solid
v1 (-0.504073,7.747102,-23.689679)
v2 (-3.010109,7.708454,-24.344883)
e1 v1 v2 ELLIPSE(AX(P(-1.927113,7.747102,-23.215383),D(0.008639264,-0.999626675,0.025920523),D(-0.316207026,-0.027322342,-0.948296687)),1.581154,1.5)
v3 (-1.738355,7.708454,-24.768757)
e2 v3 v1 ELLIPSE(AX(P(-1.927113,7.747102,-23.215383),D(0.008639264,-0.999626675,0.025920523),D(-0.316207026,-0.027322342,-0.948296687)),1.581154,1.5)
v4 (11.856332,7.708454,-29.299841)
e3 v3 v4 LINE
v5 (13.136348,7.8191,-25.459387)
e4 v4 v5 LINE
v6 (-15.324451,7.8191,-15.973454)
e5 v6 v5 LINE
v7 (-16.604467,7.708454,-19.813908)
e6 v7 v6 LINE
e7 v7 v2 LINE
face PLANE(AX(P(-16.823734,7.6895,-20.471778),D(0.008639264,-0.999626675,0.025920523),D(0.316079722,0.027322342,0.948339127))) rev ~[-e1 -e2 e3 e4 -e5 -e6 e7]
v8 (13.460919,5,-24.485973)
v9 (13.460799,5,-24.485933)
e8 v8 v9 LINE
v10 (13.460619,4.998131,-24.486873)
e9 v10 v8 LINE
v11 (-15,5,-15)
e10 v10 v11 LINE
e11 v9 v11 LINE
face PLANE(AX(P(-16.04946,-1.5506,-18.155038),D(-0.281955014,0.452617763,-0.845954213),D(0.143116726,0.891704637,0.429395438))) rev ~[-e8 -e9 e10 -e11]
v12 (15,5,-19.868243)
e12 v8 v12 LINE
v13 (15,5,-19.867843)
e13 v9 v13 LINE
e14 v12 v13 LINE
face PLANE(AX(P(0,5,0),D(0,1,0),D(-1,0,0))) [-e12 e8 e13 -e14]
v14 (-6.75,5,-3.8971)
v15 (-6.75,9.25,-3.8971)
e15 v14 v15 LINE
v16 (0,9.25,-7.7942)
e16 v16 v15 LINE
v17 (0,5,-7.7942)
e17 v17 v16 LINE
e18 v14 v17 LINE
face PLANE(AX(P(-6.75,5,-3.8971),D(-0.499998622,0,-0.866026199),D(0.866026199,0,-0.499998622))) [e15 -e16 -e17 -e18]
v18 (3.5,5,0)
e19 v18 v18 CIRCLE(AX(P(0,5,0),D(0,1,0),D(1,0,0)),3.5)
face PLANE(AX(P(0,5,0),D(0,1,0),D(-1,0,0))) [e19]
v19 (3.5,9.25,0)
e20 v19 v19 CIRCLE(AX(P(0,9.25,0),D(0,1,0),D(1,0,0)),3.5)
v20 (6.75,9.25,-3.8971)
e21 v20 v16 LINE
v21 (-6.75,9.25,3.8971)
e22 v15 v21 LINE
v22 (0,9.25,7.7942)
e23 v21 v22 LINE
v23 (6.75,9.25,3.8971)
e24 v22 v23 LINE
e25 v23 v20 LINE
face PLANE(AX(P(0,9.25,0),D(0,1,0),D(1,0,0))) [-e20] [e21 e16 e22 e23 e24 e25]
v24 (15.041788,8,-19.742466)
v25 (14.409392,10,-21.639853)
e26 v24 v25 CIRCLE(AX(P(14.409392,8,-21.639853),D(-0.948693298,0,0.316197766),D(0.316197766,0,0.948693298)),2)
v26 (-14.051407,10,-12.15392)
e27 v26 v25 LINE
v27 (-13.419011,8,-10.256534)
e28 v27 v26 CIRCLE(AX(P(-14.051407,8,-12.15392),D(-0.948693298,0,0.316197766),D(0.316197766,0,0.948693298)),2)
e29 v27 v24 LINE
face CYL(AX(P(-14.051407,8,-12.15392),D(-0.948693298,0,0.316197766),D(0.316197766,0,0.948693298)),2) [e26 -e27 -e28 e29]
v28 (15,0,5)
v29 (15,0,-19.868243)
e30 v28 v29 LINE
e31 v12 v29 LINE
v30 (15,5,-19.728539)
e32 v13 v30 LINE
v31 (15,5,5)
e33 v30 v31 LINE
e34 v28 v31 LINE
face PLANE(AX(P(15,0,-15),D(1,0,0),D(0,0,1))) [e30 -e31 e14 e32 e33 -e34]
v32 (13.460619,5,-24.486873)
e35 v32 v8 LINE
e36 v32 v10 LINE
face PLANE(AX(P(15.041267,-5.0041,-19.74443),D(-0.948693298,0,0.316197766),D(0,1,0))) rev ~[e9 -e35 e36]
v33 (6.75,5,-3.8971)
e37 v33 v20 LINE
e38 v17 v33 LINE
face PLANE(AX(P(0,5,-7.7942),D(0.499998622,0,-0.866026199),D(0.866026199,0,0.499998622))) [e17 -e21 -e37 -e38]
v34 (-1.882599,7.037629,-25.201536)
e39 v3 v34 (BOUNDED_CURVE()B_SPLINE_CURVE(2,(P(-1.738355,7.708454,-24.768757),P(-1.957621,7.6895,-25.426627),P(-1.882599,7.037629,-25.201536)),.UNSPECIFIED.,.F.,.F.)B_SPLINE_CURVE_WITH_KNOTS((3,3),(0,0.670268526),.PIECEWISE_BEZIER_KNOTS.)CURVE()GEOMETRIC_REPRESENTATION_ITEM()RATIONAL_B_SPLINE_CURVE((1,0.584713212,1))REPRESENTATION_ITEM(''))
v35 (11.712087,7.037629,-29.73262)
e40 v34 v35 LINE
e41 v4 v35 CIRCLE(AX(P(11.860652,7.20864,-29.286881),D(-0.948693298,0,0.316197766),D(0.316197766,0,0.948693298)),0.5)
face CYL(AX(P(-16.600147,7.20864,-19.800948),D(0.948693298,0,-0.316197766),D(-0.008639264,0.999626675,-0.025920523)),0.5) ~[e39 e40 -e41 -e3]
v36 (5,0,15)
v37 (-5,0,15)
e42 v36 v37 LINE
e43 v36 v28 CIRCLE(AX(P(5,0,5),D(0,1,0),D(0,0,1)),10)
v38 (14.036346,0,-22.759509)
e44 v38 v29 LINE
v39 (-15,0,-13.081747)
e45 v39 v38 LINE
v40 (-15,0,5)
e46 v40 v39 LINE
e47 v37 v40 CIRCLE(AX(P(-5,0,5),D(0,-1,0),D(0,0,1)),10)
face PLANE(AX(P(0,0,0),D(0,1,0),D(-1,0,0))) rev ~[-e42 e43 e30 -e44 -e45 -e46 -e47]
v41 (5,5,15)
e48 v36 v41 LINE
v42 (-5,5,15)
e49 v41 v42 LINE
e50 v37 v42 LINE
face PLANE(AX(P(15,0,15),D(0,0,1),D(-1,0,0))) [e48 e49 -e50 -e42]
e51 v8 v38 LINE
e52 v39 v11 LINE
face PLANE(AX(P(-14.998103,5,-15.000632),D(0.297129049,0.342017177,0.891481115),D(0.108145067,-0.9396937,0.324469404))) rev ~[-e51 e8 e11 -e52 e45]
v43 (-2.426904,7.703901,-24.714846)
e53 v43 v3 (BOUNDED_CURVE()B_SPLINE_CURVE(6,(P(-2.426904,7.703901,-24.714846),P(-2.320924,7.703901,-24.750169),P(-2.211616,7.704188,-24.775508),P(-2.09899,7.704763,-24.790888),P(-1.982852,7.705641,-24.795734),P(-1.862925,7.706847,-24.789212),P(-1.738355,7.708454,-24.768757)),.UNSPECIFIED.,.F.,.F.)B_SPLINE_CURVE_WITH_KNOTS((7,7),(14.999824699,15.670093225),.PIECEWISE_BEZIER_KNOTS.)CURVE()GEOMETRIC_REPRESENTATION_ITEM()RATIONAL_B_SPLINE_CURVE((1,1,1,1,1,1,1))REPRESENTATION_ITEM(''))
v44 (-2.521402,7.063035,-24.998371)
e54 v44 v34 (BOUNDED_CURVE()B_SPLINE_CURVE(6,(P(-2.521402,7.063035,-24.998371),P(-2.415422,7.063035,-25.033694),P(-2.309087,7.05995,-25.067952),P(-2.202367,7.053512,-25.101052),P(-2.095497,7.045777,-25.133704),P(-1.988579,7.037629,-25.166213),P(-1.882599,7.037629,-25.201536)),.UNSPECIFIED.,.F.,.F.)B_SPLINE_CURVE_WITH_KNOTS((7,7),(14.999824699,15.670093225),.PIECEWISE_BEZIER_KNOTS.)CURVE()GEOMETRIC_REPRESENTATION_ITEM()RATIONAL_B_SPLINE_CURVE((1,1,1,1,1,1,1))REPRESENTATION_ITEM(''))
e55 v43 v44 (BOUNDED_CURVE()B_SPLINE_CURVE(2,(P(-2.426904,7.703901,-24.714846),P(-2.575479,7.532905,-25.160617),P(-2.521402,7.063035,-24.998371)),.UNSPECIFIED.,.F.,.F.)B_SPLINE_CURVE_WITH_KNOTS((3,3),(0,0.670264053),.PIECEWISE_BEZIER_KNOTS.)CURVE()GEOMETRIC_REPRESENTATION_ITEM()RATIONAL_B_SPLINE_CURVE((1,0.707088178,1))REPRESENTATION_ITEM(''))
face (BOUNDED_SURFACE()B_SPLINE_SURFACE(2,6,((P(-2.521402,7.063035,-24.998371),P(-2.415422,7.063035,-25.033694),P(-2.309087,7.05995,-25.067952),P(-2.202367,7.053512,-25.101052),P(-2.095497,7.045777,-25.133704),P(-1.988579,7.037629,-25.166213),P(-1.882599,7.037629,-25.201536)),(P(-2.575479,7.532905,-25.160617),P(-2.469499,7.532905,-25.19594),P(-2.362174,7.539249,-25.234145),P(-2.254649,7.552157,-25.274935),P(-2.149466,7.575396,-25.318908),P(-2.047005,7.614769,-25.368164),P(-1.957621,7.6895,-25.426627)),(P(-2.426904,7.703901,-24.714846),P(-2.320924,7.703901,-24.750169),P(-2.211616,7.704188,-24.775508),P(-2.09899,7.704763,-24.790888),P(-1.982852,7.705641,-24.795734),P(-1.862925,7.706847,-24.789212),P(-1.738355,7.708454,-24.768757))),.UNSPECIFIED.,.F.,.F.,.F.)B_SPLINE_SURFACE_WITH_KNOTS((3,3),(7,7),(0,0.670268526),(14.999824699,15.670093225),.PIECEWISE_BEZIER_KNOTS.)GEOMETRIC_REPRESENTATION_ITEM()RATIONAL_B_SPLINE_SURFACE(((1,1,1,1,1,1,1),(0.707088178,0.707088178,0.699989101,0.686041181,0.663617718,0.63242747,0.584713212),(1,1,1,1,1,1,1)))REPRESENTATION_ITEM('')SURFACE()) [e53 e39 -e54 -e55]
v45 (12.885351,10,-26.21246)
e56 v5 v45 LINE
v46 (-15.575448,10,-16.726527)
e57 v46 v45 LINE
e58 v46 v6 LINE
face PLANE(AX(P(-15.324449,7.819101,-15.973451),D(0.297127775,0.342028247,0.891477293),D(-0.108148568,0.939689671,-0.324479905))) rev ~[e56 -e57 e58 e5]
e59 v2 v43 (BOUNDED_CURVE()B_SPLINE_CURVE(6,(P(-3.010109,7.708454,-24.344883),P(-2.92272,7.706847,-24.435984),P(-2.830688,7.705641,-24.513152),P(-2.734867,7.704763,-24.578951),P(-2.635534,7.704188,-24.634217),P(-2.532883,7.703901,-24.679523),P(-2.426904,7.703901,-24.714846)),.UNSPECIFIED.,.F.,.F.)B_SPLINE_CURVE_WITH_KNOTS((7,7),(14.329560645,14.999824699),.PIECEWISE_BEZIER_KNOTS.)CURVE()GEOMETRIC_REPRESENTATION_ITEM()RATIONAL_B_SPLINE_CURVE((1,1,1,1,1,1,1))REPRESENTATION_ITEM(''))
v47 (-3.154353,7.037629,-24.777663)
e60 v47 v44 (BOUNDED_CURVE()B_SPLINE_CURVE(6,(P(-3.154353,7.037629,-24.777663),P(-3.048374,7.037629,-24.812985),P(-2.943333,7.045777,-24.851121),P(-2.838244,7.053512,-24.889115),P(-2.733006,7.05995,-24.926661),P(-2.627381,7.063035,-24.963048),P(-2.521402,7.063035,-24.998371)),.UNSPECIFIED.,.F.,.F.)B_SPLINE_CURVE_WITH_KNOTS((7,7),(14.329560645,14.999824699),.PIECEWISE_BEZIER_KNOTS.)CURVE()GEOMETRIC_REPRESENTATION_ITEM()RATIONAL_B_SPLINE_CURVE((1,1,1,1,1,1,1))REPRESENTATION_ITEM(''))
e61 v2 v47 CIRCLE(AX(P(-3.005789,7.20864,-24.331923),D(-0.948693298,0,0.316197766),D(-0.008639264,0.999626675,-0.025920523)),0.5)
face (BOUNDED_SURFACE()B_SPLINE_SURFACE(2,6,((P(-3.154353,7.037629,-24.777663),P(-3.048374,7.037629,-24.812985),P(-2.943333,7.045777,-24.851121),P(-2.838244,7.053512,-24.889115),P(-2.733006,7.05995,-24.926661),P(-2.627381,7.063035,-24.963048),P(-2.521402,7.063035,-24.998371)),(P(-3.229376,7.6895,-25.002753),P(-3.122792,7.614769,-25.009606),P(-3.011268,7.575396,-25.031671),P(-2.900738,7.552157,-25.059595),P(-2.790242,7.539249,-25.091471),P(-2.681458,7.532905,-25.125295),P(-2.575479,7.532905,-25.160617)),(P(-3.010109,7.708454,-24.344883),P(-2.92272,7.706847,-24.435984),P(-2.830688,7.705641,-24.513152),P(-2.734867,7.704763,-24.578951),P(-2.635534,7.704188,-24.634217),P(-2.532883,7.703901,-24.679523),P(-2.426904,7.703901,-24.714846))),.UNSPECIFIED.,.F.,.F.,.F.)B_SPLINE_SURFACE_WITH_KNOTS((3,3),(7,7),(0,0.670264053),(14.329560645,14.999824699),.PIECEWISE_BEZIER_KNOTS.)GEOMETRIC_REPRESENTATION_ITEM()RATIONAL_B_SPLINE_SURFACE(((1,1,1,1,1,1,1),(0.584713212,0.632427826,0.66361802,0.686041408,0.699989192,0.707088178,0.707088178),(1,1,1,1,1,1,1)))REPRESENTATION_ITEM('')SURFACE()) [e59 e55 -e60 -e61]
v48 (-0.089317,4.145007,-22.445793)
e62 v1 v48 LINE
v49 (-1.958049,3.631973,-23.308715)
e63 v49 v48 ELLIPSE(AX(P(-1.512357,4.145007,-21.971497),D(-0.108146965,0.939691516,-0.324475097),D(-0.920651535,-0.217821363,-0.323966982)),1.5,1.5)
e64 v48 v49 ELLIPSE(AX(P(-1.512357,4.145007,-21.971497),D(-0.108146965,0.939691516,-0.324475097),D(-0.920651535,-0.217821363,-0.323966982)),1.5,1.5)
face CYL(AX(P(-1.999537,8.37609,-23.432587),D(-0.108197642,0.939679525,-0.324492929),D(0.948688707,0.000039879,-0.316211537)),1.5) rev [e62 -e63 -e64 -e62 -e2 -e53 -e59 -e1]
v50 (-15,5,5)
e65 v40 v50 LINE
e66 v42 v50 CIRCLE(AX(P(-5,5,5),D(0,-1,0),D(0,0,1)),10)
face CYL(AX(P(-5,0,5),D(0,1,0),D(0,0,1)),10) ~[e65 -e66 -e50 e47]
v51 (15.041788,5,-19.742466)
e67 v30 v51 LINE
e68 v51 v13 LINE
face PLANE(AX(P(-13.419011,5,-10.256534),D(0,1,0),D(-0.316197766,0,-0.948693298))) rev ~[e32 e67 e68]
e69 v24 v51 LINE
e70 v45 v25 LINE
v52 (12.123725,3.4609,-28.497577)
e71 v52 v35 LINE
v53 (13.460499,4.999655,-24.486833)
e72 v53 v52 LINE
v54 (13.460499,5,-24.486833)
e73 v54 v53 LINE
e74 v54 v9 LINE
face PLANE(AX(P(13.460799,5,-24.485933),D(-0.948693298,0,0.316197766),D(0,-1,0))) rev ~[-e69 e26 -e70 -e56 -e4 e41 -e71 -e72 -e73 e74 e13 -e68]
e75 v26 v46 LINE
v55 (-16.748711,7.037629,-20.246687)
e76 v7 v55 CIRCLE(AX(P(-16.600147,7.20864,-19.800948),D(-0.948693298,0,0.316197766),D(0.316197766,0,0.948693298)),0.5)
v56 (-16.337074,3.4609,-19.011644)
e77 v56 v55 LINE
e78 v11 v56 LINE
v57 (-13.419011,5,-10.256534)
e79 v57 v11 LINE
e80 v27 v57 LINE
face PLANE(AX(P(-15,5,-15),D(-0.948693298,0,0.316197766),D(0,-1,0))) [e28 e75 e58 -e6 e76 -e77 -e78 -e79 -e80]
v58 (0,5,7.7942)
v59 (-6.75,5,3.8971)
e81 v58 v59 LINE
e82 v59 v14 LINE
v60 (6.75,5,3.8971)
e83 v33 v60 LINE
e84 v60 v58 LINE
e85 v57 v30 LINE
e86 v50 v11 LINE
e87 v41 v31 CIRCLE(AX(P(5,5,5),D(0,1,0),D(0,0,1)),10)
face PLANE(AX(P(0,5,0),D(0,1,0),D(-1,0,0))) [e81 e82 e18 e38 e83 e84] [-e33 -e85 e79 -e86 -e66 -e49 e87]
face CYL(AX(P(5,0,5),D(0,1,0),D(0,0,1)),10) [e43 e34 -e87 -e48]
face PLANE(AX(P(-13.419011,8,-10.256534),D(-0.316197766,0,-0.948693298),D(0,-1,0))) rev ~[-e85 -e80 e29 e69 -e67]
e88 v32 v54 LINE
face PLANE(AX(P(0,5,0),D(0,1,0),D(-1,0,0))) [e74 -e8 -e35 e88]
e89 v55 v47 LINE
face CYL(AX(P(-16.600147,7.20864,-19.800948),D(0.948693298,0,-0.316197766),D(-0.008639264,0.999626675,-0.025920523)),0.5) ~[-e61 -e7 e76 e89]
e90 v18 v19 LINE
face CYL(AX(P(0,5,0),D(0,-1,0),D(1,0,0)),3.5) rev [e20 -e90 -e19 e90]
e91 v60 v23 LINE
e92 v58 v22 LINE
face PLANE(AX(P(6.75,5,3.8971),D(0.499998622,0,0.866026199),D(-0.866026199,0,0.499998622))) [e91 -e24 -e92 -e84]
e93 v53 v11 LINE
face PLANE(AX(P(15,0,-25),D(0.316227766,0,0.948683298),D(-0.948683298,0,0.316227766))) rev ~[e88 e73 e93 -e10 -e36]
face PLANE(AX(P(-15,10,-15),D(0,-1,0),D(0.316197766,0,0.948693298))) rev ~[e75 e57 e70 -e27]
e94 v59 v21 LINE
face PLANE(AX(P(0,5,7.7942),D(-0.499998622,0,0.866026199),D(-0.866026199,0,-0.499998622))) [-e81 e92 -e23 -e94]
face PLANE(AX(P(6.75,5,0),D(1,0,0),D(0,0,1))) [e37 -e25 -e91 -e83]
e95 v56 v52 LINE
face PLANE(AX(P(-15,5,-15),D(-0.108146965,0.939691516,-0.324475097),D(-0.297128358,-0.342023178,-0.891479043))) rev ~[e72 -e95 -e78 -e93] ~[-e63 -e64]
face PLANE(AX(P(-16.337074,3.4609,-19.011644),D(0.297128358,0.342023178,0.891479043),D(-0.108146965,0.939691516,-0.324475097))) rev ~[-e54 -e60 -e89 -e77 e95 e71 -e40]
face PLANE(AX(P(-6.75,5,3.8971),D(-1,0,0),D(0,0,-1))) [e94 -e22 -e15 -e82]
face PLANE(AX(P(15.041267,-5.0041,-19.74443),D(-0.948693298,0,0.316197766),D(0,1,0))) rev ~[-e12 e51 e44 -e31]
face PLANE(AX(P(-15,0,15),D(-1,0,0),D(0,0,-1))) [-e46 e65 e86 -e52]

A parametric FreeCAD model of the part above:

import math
import FreeCAD as App
import Part
import Sketcher
from FreeCAD import Vector
Q = App.Units.Quantity


def edges_at(feature, points):
    """Names of the edges that pass closest to the given points."""
    edges = feature.Shape.Edges
    near = lambda p: min(range(len(edges)), key=lambda i: edges[i].distToShape(Part.Vertex(*p))[0])
    return sorted({f"Edge{near(p) + 1}" for p in points})

doc = App.newDocument("Part")
body = doc.addObject("PartDesign::Body", "Body")

sketch1 = body.newObject("Sketcher::SketchObject", "Sketch")
sketch1.AttachmentSupport = (doc.getObject("XZ_Plane"), [""])
sketch1.MapMode = "FlatFace"
sketch1.addGeometry([
    Part.LineSegment(Vector(-15, 15, 0), Vector(15, 15, 0)),
    Part.LineSegment(Vector(15, 15, 0), Vector(15, -25, 0)),
    Part.LineSegment(Vector(15, -25, 0), Vector(-15, -15, 0)),
    Part.LineSegment(Vector(-15, -15, 0), Vector(-15, 15, 0)),
], False)
sketch1.addConstraint([
    Sketcher.Constraint("Coincident", 0, 2, 1, 1),
    Sketcher.Constraint("Coincident", 1, 2, 2, 1),
    Sketcher.Constraint("Coincident", 2, 2, 3, 1),
    Sketcher.Constraint("Coincident", 3, 2, 0, 1),
    Sketcher.Constraint("Horizontal", 0),
    Sketcher.Constraint("Vertical", 1),
    Sketcher.Constraint("Vertical", 3),
    Sketcher.Constraint("Symmetric", 0, 2, 2, 2, -1, 1),
    Sketcher.Constraint("Equal", 0, 3),
    Sketcher.Constraint("DistanceX", 0, 1, 0, 2, 30.0),
    Sketcher.Constraint("DistanceY", 1, 2, 2, 2, 10.0),
])
pad1 = body.newObject("PartDesign::Pad", "Pad")
pad1.Profile = sketch1
pad1.Length = 5
pad1.Reversed = True

sketch2 = body.newObject("Sketcher::SketchObject", "Sketch001")
sketch2.Placement = App.Placement(Vector(-15, 5, -15), App.Rotation(Vector(0, -1, 0), Vector(0.316197766, 0, 0.948693298), Vector(-0.948693298, 0, 0.316197766), "ZXY"))
sketch2.addGeometry([
    Part.LineSegment(Vector(0, 0, 0), Vector(0, 5, 0)),
    Part.LineSegment(Vector(0, 5, 0), Vector(-3, 5, 0)),
    Part.ArcOfCircle(Part.Circle(Vector(-3, 3, 0), Vector(0, 0, 1), 2), math.radians(90), math.radians(180)),
    Part.LineSegment(Vector(-5, 3, 0), Vector(-5, -1.8199, 0)),
    Part.LineSegment(Vector(-5, -1.8199, 0), Vector(-2.8191, -1.0261, 0)),
    Part.LineSegment(Vector(-2.8191, -1.0261, 0), Vector(-2.6895, -5.7677, 0)),
    Part.LineSegment(Vector(-2.6895, -5.7677, 0), Vector(1.5391, -4.2286, 0)),
    Part.LineSegment(Vector(1.5391, -4.2286, 0), Vector(0, 0, 0)),
], False)
sketch2.addConstraint([
    Sketcher.Constraint("Coincident", 0, 2, 1, 1),
    Sketcher.Constraint("Tangent", 1, 2, 2, 1),
    Sketcher.Constraint("Tangent", 2, 2, 3, 1),
    Sketcher.Constraint("Coincident", 3, 2, 4, 1),
    Sketcher.Constraint("Coincident", 4, 2, 5, 1),
    Sketcher.Constraint("Coincident", 5, 2, 6, 1),
    Sketcher.Constraint("Coincident", 6, 2, 7, 1),
    Sketcher.Constraint("Coincident", 7, 2, 0, 1),
    Sketcher.Constraint("Vertical", 0),
    Sketcher.Constraint("Horizontal", 1),
    Sketcher.Constraint("Vertical", 3),
    Sketcher.Constraint("Coincident", 7, 2, -1, 1),
    Sketcher.Constraint("Parallel", 4, 6),
    Sketcher.Constraint("Perpendicular", 6, 7),
    Sketcher.Constraint("Equal", 6, 7),
    Sketcher.Constraint("Radius", 2, 2.0),
    Sketcher.Constraint("DistanceX", 1, 2, 1, 1, 3.0),
    Sketcher.Constraint("DistanceY", 0, 1, 0, 2, 5.0),
    Sketcher.Constraint("Distance", 6, 4.5),
    Sketcher.Constraint("Angle", 4, Q("20.0004 deg")),
    Sketcher.Constraint("DistanceY", 3, 2, 3, 1, 4.82),
    Sketcher.Constraint("DistanceX", 4, 2, -1, 1, 2.819),
])
pad2 = body.newObject("PartDesign::Pad", "Pad001")
pad2.Profile = sketch2
pad2.Length = 30
pad2.Reversed = True

sketch3 = body.newObject("Sketcher::SketchObject", "Sketch002")
sketch3.Placement = App.Placement(Vector(-16.8239, 7.6895, -20.4717), App.Rotation(Vector(0.948688707, 0.000039879, -0.316211537), Vector(0.297124566, 0.34205612, 0.891467668), Vector(0.108197642, -0.939679525, 0.324492929), "ZXY"))
sketch3.addGeometry(Part.Circle(Vector(15, 2, 0), Vector(0, 0, 1), 1.5), False)
sketch3.addConstraint([
    Sketcher.Constraint("Diameter", 0, 3.0),
    Sketcher.Constraint("DistanceX", -1, 1, 0, 3, 15.0),
    Sketcher.Constraint("DistanceY", -1, 1, 0, 3, 2.0),
])
pocket1 = body.newObject("PartDesign::Pocket", "Pocket")
pocket1.Profile = sketch3
pocket1.Length = 10
pocket1.Reversed = True

sketch4 = body.newObject("Sketcher::SketchObject", "Sketch003")
sketch4.AttachmentSupport = (doc.getObject("XZ_Plane"), [""])
sketch4.MapMode = "FlatFace"
sketch4.AttachmentOffset = App.Placement(Vector(0, 0, -5), App.Rotation())
sketch4.addGeometry([
    Part.LineSegment(Vector(6.75, 3.8971, 0), Vector(6.75, -3.8971, 0)),
    Part.LineSegment(Vector(6.75, -3.8971, 0), Vector(0, -7.7942, 0)),
    Part.LineSegment(Vector(0, -7.7942, 0), Vector(-6.75, -3.8971, 0)),
    Part.LineSegment(Vector(-6.75, -3.8971, 0), Vector(-6.75, 3.8971, 0)),
    Part.LineSegment(Vector(-6.75, 3.8971, 0), Vector(0, 7.7942, 0)),
    Part.LineSegment(Vector(0, 7.7942, 0), Vector(6.75, 3.8971, 0)),
    Part.Circle(Vector(0, 0, 0), Vector(0, 0, 1), 3.5),
], False)
sketch4.addConstraint([
    Sketcher.Constraint("Coincident", 0, 2, 1, 1),
    Sketcher.Constraint("Coincident", 1, 2, 2, 1),
    Sketcher.Constraint("Coincident", 2, 2, 3, 1),
    Sketcher.Constraint("Coincident", 3, 2, 4, 1),
    Sketcher.Constraint("Coincident", 4, 2, 5, 1),
    Sketcher.Constraint("Coincident", 5, 2, 0, 1),
    Sketcher.Constraint("Vertical", 0),
    Sketcher.Constraint("Vertical", 3),
    Sketcher.Constraint("Coincident", 6, 3, -1, 1),
    Sketcher.Constraint("Symmetric", 0, 2, 3, 2, -1, 1),
    Sketcher.Constraint("Symmetric", 1, 2, 4, 2, -1, 1),
    Sketcher.Constraint("PointOnObject", 1, 2, -2),
    Sketcher.Constraint("Parallel", 2, 5),
    Sketcher.Constraint("Horizontal", 0, 2, 2, 2),
    Sketcher.Constraint("Diameter", 6, 7.0),
    Sketcher.Constraint("DistanceX", 2, 2, 0, 2, 13.5),
    Sketcher.Constraint("Angle", 1, Q("-150 deg")),
    Sketcher.Constraint("DistanceY", 0, 2, 0, 1, 7.7942),
])
pad3 = body.newObject("PartDesign::Pad", "Pad002")
pad3.Profile = sketch4
pad3.Length = 4.25
pad3.Reversed = True

sketch5 = body.newObject("Sketcher::SketchObject", "Sketch004")
sketch5.Placement = App.Placement(Vector(-15, 5, -15), App.Rotation(Vector(0, -1, 0), Vector(0.316197766, 0, 0.948693298), Vector(-0.948693298, 0, 0.316197766), "ZXY"))
sketch5.addGeometry([
    Part.LineSegment(Vector(6.5506, 2.3842, 0), Vector(0, 0, 0)),
    Part.LineSegment(Vector(0, 0, 0), Vector(6.5506, -3.325, 0)),
    Part.LineSegment(Vector(6.5506, -3.325, 0), Vector(6.5506, 2.3842, 0)),
], False)
sketch5.addConstraint([
    Sketcher.Constraint("Coincident", 0, 2, 1, 1),
    Sketcher.Constraint("Coincident", 1, 2, 2, 1),
    Sketcher.Constraint("Coincident", 2, 2, 0, 1),
    Sketcher.Constraint("Vertical", 2),
    Sketcher.Constraint("Coincident", 0, 2, -1, 1),
    Sketcher.Constraint("Angle", 0, Q("-160.0002 deg")),
    Sketcher.Constraint("Distance", 0, 6.971),
    Sketcher.Constraint("DistanceY", 2, 1, 2, 2, 5.7092),
])
pocket2 = body.newObject("PartDesign::Pocket", "Pocket001")
pocket2.Profile = sketch5
pocket2.Type = "ThroughAll"
pocket2.Midplane = True
doc.recompute()

fillet = body.newObject("PartDesign::Fillet", "Fillet")
fillet.Base = (pocket2, edges_at(pocket2, [(-2.594, 7.689, -25.215)]))
fillet.Radius = 0.5

sketch6 = body.newObject("Sketcher::SketchObject", "Sketch005")
sketch6.Placement = App.Placement(Vector(-13.4189, 5, -10.2566), App.Rotation(Vector(0.948693298, 0, -0.316197766), Vector(0, 1.000000001, 0), Vector(0.316197766, 0, 0.948693298), "ZXY"))
sketch6.addGeometry([
    Part.LineSegment(Vector(36.1043, 0, 0), Vector(30, 0, 0)),
    Part.LineSegment(Vector(30, 0, 0), Vector(30, -10.0041, 0)),
    Part.LineSegment(Vector(30, -10.0041, 0), Vector(36.1043, -10.0041, 0)),
    Part.LineSegment(Vector(36.1043, -10.0041, 0), Vector(36.1043, 0, 0)),
], False)
sketch6.addConstraint([
    Sketcher.Constraint("Coincident", 0, 2, 1, 1),
    Sketcher.Constraint("Coincident", 1, 2, 2, 1),
    Sketcher.Constraint("Coincident", 2, 2, 3, 1),
    Sketcher.Constraint("Coincident", 3, 2, 0, 1),
    Sketcher.Constraint("Horizontal", 0),
    Sketcher.Constraint("Vertical", 1),
    Sketcher.Constraint("Horizontal", 2),
    Sketcher.Constraint("Vertical", 3),
    Sketcher.Constraint("PointOnObject", 0, 2, -1),
    Sketcher.Constraint("DistanceX", -1, 1, 0, 2, 30.0),
    Sketcher.Constraint("DistanceY", 1, 2, 1, 1, 10.004),
    Sketcher.Constraint("DistanceX", 0, 2, 0, 1, 6.1043),
])
pocket3 = body.newObject("PartDesign::Pocket", "Pocket002")
pocket3.Profile = sketch6
pocket3.Length = 20
pocket3.Midplane = True
doc.recompute()

fillet2 = body.newObject("PartDesign::Fillet", "Fillet001")
fillet2.Base = (pocket3, edges_at(pocket3, [(15, 2.5, 15), (-15, 2.5, 15)]))
fillet2.Radius = 10

doc.recompute()
